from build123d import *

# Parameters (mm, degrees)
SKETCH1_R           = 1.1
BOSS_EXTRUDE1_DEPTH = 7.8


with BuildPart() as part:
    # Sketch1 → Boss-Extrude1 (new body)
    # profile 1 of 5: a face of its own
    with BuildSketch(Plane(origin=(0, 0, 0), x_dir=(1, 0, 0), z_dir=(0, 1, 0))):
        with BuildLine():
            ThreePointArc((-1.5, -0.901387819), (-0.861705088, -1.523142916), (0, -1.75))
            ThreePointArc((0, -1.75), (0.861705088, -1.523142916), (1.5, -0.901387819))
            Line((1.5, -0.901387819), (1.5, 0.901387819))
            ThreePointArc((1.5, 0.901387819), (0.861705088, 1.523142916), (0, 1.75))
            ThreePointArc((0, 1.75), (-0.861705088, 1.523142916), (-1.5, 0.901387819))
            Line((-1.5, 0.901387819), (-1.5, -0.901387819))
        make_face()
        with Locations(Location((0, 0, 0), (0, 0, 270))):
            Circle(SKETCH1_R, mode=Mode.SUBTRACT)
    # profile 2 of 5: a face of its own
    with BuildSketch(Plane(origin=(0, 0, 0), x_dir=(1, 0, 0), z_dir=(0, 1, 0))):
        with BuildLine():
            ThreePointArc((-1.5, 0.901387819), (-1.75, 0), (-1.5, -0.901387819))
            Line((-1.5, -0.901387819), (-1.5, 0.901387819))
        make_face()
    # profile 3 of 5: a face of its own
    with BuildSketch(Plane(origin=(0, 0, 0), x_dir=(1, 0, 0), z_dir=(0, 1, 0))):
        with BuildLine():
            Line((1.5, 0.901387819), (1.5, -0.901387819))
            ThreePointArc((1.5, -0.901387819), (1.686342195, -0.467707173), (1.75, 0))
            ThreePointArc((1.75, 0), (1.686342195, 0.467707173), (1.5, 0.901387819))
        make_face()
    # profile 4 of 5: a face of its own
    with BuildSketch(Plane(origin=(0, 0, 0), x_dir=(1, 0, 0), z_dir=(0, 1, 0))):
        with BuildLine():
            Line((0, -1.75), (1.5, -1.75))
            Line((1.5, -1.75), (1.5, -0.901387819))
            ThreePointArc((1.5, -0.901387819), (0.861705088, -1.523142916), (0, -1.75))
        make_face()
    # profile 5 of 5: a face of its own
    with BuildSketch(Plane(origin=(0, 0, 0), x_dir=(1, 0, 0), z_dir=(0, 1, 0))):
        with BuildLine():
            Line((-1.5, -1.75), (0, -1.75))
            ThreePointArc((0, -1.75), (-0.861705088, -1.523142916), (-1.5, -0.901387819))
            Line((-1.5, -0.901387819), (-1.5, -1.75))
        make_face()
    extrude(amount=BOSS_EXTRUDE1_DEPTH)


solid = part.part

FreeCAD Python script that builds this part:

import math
import FreeCAD as App
import Part
import Sketcher
from FreeCAD import Vector

doc = App.newDocument("Part")
body = doc.addObject("PartDesign::Body", "Body")

# Sketch on XZ plane
sketch1 = body.newObject("Sketcher::SketchObject", "Sketch")
sketch1.AttachmentSupport = (doc.getObject("XZ_Plane"), [""])
sketch1.MapMode = "FlatFace"
sketch1.addGeometry([
    Part.ArcOfCircle(Part.Circle(Vector(0, 0, 0), Vector(0, 0, 1), 1.75), math.radians(-148.997281), math.radians(-90)),  # 0
    Part.ArcOfCircle(Part.Circle(Vector(0, 0, 0), Vector(0, 0, 1), 1.75), math.radians(148.997281), math.radians(211.002719)),  # 1
    Part.LineSegment(Vector(-1.5, 0.901388, 0), Vector(-1.5, 1.75, 0)),  # 2
    Part.LineSegment(Vector(-1.5, 1.75, 0), Vector(1.5, 1.75, 0)),  # 3
    Part.LineSegment(Vector(1.5, 1.75, 0), Vector(1.5, 0.901388, 0)),  # 4
    Part.ArcOfCircle(Part.Circle(Vector(0, 0, 0), Vector(0, 0, 1), 1.75), math.radians(0), math.radians(31.002719)),  # 5
    Part.ArcOfCircle(Part.Circle(Vector(0, 0, 0), Vector(0, 0, 1), 1.75), math.radians(-31.002719), math.radians(0)),  # 6
    Part.ArcOfCircle(Part.Circle(Vector(0, 0, 0), Vector(0, 0, 1), 1.75), math.radians(-90), math.radians(-31.002719)),  # 7
    Part.Circle(Vector(0, 0, 0), Vector(0, 0, 1), 1.1),  # 8
], False)
sketch1.addConstraint([
    Sketcher.Constraint("Tangent", 0, 1, 1, 2),
    Sketcher.Constraint("Coincident", 1, 1, 2, 1),
    Sketcher.Constraint("Coincident", 2, 2, 3, 1),
    Sketcher.Constraint("Coincident", 3, 2, 4, 1),
    Sketcher.Constraint("Coincident", 4, 2, 5, 2),
    Sketcher.Constraint("Tangent", 5, 1, 6, 2),
    Sketcher.Constraint("Tangent", 6, 1, 7, 2),
    Sketcher.Constraint("Tangent", 7, 1, 0, 2),
    Sketcher.Constraint("Vertical", 2),
    Sketcher.Constraint("Horizontal", 3),
    Sketcher.Constraint("Vertical", 4),
    Sketcher.Constraint("Coincident", 0, 3, -1, 1),
    Sketcher.Constraint("Coincident", 5, 3, -1, 1),
    Sketcher.Constraint("Coincident", 8, 3, -1, 1),
    Sketcher.Constraint("Equal", 0, 1),
    Sketcher.Constraint("Equal", 1, 5),
    Sketcher.Constraint("PointOnObject", 5, 1, -1),
    Sketcher.Constraint("PointOnObject", 7, 1, -2),
    Sketcher.Constraint("Horizontal", 1, 1, 4, 2),
    Sketcher.Constraint("Horizontal", 0, 1, 6, 1),
    Sketcher.Constraint("Vertical", 0, 1, 1, 1),
    Sketcher.Constraint("Diameter", 8, 2.2),
    Sketcher.Constraint("DistanceX", 3, 1, 3, 2, 3.0),
    Sketcher.Constraint("Radius", 0, 1.75),
    Sketcher.Constraint("DistanceY", -1, 1, 2, 2, 1.75),
])
pad1 = body.newObject("PartDesign::Pad", "Pad")
pad1.Profile = sketch1
pad1.Length = 7.8
pad1.Reversed = True

doc.recompute()
